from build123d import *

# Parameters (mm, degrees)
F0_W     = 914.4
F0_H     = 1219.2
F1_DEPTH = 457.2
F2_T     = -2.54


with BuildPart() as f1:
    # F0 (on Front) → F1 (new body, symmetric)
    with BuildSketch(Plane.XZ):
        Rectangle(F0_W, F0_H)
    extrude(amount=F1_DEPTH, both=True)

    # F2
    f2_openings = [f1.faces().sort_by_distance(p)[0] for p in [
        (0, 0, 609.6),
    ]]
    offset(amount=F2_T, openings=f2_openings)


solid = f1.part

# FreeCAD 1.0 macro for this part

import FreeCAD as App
import Part
import Sketcher

V = App.Vector
Q = App.Units.Quantity


def faces_at(feature, points):
    """Names of the faces that lie closest to the given points."""
    faces = feature.Shape.Faces
    near = lambda p: min(range(len(faces)), key=lambda i: faces[i].distToShape(Part.Vertex(*p))[0])
    return sorted({f"Face{near(p) + 1}" for p in points})


def add_polygon(sketch, points):
    """Adds a closed chain of lines whose ends are joined by coincident constraints."""
    first, n = sketch.GeometryCount, len(points)
    for a, b in zip(points, points[1:] + points[:1]):
        sketch.addGeometry(Part.LineSegment(App.Vector(*a, 0), App.Vector(*b, 0)), False)
    for i in range(n):
        sketch.addConstraint(Sketcher.Constraint("Coincident", first + i, 2, first + (i + 1) % n, 1))

doc = App.newDocument("Part")
body = doc.addObject("PartDesign::Body", "Body")

sketch1 = doc.addObject("Sketcher::SketchObject", "Sketch")
body.addObject(sketch1)
sketch1.AttachmentSupport = (doc.XZ_Plane, [""])
sketch1.MapMode = "FlatFace"
add_polygon(sketch1, [(-457.2, 609.6), (-457.2, -609.6), (457.2, -609.6), (457.2, 609.6)])
sketch1.addConstraint([
    Sketcher.Constraint("Vertical", 0),
    Sketcher.Constraint("Horizontal", 1),
    Sketcher.Constraint("Vertical", 2),
    Sketcher.Constraint("Horizontal", 3),
    Sketcher.Constraint("Symmetric", 0, 2, 2, 2, -1, 1),
    Sketcher.Constraint("DistanceX", 1, 1, 1, 2, Q("36 in")),
    Sketcher.Constraint("DistanceY", 0, 2, 0, 1, Q("48 in")),
])
pad1 = doc.addObject("PartDesign::Pad", "Pad")
body.addObject(pad1)
pad1.Profile = sketch1
pad1.Length = Q("36 in")
pad1.Midplane = True
doc.recompute()

thickness = doc.addObject("PartDesign::Thickness", "Thickness")
body.addObject(thickness)
thickness.Base = (pad1, faces_at(pad1, [(0, 0, 609.6)]))
thickness.Value = Q("0.1 in")
thickness.Reversed = True
thickness.Join = "Arc"

doc.recompute()
